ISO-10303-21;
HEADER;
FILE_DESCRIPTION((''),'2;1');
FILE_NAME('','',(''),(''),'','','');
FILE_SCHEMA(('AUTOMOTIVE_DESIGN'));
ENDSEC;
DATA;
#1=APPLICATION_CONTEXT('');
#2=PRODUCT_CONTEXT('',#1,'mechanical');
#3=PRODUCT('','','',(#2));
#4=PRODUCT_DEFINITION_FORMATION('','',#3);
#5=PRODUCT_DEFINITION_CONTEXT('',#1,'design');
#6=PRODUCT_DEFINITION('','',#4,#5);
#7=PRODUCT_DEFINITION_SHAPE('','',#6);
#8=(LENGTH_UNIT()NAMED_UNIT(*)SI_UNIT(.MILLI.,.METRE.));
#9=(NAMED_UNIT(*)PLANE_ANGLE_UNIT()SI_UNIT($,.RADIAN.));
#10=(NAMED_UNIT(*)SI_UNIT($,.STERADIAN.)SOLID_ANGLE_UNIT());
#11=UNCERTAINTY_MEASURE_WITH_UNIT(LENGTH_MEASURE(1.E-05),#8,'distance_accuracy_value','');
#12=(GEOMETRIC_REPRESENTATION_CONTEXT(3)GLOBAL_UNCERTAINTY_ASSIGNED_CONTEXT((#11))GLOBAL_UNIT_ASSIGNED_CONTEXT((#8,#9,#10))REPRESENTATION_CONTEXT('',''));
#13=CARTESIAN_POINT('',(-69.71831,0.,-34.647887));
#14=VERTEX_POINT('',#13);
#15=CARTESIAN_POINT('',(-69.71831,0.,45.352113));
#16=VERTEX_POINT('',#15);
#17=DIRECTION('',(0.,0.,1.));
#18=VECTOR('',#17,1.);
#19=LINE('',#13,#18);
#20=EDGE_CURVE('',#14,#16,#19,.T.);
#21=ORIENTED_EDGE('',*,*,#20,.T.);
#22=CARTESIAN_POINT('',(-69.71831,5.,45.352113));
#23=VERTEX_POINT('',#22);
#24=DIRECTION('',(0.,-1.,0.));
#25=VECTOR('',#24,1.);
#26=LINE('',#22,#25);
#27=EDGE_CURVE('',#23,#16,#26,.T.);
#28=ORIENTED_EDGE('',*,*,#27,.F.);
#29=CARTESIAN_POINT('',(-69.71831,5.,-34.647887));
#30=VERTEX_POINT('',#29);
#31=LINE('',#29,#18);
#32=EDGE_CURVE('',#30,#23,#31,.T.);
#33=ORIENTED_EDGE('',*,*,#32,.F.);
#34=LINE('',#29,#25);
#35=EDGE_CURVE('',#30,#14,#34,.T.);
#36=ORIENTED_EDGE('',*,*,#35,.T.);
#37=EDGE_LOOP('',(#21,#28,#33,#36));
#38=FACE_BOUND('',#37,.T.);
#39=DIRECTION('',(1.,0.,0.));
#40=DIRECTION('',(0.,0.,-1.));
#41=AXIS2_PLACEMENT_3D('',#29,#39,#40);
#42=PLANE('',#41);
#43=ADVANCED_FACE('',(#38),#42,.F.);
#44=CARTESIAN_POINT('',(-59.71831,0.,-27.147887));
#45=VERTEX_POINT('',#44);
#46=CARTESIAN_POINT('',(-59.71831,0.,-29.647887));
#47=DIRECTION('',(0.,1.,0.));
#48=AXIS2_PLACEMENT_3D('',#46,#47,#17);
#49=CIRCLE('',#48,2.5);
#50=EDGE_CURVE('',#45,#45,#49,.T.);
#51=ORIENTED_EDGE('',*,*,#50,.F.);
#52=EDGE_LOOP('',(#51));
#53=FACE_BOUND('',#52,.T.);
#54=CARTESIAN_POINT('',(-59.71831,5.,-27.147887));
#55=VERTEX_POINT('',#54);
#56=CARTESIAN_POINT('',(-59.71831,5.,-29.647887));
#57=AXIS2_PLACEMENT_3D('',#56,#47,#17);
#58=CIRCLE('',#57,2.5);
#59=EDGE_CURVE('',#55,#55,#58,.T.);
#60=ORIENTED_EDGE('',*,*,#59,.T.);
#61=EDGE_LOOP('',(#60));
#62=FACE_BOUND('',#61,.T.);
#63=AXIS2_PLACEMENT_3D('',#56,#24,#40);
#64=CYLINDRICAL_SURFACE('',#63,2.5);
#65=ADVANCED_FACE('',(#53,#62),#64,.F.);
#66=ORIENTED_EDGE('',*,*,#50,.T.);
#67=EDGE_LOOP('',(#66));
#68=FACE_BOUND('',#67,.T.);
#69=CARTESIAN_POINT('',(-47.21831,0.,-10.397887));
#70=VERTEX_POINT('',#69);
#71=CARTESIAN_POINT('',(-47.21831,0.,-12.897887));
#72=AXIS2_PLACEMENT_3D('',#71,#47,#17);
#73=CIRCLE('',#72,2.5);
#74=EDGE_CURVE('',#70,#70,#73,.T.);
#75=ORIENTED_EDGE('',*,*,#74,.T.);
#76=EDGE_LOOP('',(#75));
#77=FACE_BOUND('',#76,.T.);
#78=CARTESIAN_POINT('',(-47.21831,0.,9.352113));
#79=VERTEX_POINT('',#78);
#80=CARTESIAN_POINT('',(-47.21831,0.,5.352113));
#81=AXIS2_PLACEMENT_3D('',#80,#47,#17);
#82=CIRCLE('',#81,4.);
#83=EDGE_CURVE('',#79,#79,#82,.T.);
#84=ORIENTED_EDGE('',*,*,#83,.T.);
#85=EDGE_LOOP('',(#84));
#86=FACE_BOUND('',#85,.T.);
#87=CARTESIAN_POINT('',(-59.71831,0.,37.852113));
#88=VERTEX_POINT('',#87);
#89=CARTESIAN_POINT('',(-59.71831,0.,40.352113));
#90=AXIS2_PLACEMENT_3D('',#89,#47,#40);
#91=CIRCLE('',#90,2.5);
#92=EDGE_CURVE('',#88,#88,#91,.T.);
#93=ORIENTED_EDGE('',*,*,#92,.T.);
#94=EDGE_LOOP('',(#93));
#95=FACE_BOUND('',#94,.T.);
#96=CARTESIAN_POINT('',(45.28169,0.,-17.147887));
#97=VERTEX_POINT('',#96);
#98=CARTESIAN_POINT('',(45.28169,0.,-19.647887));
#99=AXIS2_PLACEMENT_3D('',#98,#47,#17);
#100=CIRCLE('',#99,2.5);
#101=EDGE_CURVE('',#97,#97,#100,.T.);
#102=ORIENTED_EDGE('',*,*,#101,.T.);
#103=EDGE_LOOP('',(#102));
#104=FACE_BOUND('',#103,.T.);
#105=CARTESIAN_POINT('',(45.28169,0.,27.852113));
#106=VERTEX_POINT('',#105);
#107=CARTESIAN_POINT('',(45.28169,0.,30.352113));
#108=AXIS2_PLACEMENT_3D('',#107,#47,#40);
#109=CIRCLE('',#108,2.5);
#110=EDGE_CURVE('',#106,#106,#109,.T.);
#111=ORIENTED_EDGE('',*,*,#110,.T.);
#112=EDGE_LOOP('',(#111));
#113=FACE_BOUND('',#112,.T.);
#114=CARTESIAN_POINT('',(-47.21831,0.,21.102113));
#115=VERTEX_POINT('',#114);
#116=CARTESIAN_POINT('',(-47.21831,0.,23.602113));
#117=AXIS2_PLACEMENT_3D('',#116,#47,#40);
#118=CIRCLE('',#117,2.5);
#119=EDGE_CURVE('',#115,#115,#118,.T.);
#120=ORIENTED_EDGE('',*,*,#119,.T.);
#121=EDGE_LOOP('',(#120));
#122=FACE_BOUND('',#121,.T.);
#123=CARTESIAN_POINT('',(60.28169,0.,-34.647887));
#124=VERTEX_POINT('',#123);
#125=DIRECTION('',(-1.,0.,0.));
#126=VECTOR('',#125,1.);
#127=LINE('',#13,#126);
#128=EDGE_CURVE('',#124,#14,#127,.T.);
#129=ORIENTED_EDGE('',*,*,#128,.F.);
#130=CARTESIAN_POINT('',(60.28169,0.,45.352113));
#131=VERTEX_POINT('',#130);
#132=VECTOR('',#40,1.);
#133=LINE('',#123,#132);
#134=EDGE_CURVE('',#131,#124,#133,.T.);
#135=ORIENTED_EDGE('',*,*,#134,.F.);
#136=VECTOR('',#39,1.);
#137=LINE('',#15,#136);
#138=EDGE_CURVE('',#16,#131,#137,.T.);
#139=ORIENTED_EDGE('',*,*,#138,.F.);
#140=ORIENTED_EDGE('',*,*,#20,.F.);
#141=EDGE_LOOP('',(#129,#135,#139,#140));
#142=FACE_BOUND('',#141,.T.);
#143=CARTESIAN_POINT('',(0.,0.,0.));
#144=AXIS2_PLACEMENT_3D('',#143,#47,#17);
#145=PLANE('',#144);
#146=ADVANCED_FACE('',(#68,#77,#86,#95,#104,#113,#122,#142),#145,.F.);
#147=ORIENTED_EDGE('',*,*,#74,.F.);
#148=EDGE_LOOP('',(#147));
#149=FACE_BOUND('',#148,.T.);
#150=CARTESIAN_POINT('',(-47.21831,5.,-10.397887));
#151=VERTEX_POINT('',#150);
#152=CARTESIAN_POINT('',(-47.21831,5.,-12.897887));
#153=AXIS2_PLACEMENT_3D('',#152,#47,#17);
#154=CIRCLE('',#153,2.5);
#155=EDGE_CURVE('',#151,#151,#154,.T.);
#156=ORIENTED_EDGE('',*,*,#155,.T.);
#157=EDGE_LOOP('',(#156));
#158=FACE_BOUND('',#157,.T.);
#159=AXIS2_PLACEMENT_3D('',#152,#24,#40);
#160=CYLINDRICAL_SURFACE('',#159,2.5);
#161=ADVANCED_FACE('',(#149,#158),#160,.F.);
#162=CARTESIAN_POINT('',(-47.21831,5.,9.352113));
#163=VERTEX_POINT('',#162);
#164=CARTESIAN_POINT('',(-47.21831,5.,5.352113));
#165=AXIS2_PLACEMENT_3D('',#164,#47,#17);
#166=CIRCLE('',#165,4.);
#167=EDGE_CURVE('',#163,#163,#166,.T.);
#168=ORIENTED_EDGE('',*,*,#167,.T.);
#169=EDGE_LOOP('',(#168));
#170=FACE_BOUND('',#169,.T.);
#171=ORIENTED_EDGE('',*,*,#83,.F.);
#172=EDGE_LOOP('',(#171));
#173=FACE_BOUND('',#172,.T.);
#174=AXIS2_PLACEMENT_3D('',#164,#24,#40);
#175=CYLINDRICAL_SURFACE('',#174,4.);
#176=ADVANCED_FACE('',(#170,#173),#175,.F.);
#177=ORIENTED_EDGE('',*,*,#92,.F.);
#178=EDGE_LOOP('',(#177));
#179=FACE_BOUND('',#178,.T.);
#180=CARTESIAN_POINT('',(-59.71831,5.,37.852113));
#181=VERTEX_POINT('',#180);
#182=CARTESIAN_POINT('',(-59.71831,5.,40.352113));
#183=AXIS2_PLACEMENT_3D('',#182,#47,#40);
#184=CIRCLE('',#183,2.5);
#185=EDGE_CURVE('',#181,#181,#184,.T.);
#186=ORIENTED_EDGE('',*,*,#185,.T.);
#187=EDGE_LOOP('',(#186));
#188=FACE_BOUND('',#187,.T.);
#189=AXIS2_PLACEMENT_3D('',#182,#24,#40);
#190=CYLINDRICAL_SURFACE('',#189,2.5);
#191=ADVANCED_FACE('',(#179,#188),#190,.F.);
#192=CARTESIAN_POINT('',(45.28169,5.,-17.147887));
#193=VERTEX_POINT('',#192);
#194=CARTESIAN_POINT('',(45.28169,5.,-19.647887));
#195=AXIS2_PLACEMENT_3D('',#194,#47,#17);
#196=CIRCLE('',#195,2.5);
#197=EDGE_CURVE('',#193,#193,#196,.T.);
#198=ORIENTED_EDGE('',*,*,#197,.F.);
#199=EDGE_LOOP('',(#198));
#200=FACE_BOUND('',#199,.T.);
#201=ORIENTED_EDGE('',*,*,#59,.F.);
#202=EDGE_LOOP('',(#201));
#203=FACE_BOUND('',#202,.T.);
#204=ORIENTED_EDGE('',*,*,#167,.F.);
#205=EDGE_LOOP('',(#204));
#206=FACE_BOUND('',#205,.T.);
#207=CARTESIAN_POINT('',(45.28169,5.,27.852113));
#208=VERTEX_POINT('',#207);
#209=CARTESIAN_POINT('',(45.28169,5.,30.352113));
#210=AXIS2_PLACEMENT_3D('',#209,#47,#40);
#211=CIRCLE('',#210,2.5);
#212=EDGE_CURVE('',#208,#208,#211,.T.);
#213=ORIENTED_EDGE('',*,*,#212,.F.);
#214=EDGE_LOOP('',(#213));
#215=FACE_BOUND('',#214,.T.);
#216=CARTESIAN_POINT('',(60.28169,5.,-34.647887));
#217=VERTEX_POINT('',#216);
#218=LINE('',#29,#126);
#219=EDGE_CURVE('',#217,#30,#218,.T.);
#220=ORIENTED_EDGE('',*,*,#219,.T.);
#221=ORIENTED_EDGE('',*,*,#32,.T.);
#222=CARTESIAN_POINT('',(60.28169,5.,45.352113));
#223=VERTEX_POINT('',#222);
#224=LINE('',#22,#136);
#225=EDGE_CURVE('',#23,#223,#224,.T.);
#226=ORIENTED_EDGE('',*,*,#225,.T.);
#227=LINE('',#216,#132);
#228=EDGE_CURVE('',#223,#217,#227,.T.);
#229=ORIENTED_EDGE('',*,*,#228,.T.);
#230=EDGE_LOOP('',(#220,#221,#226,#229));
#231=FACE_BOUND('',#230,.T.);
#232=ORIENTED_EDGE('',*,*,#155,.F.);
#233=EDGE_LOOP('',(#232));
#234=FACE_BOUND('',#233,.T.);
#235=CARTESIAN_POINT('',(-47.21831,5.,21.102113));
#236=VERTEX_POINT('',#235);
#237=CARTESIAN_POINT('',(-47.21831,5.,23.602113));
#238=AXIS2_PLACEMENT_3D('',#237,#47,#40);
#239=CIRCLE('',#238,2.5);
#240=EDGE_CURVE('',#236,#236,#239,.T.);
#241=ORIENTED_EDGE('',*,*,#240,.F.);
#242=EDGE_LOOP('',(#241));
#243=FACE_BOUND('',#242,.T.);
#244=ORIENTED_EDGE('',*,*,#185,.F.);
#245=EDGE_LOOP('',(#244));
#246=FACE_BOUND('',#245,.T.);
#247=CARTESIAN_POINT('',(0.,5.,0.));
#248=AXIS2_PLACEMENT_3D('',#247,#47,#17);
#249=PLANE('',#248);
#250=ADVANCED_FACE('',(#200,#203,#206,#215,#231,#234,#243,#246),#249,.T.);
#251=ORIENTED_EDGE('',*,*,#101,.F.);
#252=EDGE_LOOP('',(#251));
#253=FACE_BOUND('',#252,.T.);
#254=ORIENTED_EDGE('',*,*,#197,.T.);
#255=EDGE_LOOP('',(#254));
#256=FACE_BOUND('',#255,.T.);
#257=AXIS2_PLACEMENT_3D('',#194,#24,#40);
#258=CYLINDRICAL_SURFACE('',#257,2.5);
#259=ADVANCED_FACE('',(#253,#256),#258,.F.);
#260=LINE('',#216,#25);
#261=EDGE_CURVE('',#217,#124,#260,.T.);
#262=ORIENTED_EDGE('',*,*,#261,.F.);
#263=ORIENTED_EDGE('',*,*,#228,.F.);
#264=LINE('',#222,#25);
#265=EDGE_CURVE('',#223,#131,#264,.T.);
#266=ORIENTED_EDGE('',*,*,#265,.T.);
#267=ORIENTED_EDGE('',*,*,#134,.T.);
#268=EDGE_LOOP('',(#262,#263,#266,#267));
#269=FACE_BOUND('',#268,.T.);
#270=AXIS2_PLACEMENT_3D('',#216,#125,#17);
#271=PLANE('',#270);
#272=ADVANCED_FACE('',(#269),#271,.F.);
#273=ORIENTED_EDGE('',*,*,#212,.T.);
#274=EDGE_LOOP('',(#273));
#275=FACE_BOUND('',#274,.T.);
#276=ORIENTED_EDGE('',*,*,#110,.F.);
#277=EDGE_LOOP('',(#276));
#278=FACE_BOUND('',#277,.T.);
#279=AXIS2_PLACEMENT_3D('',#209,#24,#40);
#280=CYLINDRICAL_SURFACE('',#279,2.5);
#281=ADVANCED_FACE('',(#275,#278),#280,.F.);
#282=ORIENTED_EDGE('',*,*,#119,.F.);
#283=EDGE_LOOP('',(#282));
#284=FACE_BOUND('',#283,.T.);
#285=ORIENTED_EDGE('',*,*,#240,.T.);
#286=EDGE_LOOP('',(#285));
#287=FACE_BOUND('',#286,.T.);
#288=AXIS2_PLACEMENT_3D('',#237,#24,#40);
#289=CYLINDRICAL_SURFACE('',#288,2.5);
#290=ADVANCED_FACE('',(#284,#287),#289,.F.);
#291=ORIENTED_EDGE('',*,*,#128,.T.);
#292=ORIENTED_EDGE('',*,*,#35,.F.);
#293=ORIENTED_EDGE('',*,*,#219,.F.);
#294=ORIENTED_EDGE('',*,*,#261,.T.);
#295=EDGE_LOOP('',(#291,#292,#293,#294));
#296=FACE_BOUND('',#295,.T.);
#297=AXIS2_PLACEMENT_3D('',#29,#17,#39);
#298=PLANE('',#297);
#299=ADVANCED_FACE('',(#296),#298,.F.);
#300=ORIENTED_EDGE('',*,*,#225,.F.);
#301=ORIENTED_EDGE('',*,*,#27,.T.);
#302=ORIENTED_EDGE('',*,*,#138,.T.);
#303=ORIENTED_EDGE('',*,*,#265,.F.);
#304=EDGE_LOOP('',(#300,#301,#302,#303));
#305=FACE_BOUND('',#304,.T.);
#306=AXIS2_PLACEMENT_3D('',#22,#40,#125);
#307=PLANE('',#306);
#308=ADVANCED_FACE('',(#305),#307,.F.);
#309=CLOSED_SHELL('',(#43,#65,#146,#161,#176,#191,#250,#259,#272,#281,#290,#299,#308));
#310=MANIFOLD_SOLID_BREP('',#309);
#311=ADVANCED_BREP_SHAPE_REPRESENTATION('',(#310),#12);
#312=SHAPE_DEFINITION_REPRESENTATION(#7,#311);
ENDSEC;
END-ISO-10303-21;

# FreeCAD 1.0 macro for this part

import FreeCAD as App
import Part
import Sketcher
Q = App.Units.Quantity

doc = App.newDocument("Part")
params = doc.addObject("Spreadsheet::Sheet", "Params")
for row, (alias, value) in enumerate([
    ("sketch1_diameter", "5 mm"),
    ("sketch1_diameter2", "8 mm"),
    ("sketch1_width", "130 mm"),
    ("sketch1_height", "80 mm"),
    ("pad1_length", "5 mm"),
], start=1):
    params.set(f"A{row}", alias)
    params.set(f"B{row}", "=" + value)
    params.setAlias(f"B{row}", alias)

body = doc.addObject("PartDesign::Body", "Body")

# Sketch on XZ plane
sketch1 = doc.addObject("Sketcher::SketchObject", "Sketch")
body.addObject(sketch1)
sketch1.AttachmentSupport = (doc.XZ_Plane, [""])
sketch1.MapMode = "FlatFace"
sketch1.addGeometry([
    Part.LineSegment(App.Vector(-69.71831, -34.647887, 0), App.Vector(-69.71831, 45.352113, 0)),  # 0
    Part.LineSegment(App.Vector(-69.71831, 45.352113, 0), App.Vector(60.28169, 45.352113, 0)),  # 1
    Part.LineSegment(App.Vector(60.28169, 45.352113, 0), App.Vector(60.28169, -34.647887, 0)),  # 2
    Part.LineSegment(App.Vector(60.28169, -34.647887, 0), App.Vector(-69.71831, -34.647887, 0)),  # 3
    Part.Circle(App.Vector(-59.71831, 40.352113, 0), App.Vector(0, 0, 1), 2.5),  # 4
    Part.Circle(App.Vector(-47.21831, 23.602113, 0), App.Vector(0, 0, 1), 2.5),  # 5
    Part.Circle(App.Vector(45.28169, 30.352113, 0), App.Vector(0, 0, 1), 2.5),  # 6
    Part.Circle(App.Vector(-47.21831, 5.352113, 0), App.Vector(0, 0, 1), 4),  # 7
    Part.Circle(App.Vector(-47.21831, -12.897887, 0), App.Vector(0, 0, 1), 2.5),  # 8
    Part.Circle(App.Vector(-59.71831, -29.647887, 0), App.Vector(0, 0, 1), 2.5),  # 9
    Part.Circle(App.Vector(45.28169, -19.647887, 0), App.Vector(0, 0, 1), 2.5),  # 10
], False)
sketch1.addConstraint([
    Sketcher.Constraint("Coincident", 0, 2, 1, 1),
    Sketcher.Constraint("Coincident", 1, 2, 2, 1),
    Sketcher.Constraint("Coincident", 2, 2, 3, 1),
    Sketcher.Constraint("Coincident", 3, 2, 0, 1),
    Sketcher.Constraint("Vertical", 0),
    Sketcher.Constraint("Horizontal", 1),
    Sketcher.Constraint("Vertical", 2),
    Sketcher.Constraint("Horizontal", 3),
    Sketcher.Constraint("Equal", 4, 5),
    Sketcher.Constraint("Equal", 5, 6),
    Sketcher.Constraint("Equal", 6, 8),
    Sketcher.Constraint("Equal", 8, 9),
    Sketcher.Constraint("Equal", 9, 10),
    Sketcher.Constraint("Vertical", 5, 3, 7, 3),
    Sketcher.Constraint("Vertical", 7, 3, 8, 3),
    Sketcher.Constraint("Vertical", 4, 3, 9, 3),
    Sketcher.Constraint("Vertical", 6, 3, 10, 3),
    Sketcher.Constraint("Diameter", 4, Q("5 mm")),
    Sketcher.Constraint("Diameter", 7, Q("8 mm")),
    Sketcher.Constraint("DistanceX", 1, 1, 1, 2, Q("130 mm")),
    Sketcher.Constraint("DistanceY", 0, 1, 0, 2, Q("80 mm")),
    Sketcher.Constraint("DistanceX", 4, 3, 6, 3, Q("105 mm")),
    Sketcher.Constraint("DistanceY", 6, 3, 4, 3, Q("10 mm")),
    Sketcher.Constraint("DistanceY", 7, 3, 4, 3, Q("35 mm")),
    Sketcher.Constraint("DistanceY", 9, 3, 7, 3, Q("35 mm")),
    Sketcher.Constraint("DistanceY", 10, 3, 6, 3, Q("50 mm")),
    Sketcher.Constraint("DistanceX", 0, 2, 4, 3, Q("10 mm")),
    Sketcher.Constraint("DistanceY", 4, 3, 0, 2, Q("5 mm")),
    Sketcher.Constraint("DistanceX", 4, 3, 5, 3, Q("12.5 mm")),
    Sketcher.Constraint("DistanceY", 8, 3, 5, 3, Q("36.5 mm")),
    Sketcher.Constraint("DistanceY", 5, 3, 4, 3, Q("16.75 mm")),
    Sketcher.Constraint("DistanceX", 4, 3, -1, 1, Q("59.71831 mm")),
    Sketcher.Constraint("DistanceY", -1, 1, 4, 3, Q("40.352113 mm")),
])
sketch1.setExpression("Constraints[17]", "Params.sketch1_diameter")
sketch1.setExpression("Constraints[18]", "Params.sketch1_diameter2")
sketch1.setExpression("Constraints[19]", "Params.sketch1_width")
sketch1.setExpression("Constraints[20]", "Params.sketch1_height")
pad1 = doc.addObject("PartDesign::Pad", "Pad")
body.addObject(pad1)
pad1.Profile = sketch1
pad1.setExpression("Length", "Params.pad1_length")
pad1.Reversed = True

doc.recompute()
